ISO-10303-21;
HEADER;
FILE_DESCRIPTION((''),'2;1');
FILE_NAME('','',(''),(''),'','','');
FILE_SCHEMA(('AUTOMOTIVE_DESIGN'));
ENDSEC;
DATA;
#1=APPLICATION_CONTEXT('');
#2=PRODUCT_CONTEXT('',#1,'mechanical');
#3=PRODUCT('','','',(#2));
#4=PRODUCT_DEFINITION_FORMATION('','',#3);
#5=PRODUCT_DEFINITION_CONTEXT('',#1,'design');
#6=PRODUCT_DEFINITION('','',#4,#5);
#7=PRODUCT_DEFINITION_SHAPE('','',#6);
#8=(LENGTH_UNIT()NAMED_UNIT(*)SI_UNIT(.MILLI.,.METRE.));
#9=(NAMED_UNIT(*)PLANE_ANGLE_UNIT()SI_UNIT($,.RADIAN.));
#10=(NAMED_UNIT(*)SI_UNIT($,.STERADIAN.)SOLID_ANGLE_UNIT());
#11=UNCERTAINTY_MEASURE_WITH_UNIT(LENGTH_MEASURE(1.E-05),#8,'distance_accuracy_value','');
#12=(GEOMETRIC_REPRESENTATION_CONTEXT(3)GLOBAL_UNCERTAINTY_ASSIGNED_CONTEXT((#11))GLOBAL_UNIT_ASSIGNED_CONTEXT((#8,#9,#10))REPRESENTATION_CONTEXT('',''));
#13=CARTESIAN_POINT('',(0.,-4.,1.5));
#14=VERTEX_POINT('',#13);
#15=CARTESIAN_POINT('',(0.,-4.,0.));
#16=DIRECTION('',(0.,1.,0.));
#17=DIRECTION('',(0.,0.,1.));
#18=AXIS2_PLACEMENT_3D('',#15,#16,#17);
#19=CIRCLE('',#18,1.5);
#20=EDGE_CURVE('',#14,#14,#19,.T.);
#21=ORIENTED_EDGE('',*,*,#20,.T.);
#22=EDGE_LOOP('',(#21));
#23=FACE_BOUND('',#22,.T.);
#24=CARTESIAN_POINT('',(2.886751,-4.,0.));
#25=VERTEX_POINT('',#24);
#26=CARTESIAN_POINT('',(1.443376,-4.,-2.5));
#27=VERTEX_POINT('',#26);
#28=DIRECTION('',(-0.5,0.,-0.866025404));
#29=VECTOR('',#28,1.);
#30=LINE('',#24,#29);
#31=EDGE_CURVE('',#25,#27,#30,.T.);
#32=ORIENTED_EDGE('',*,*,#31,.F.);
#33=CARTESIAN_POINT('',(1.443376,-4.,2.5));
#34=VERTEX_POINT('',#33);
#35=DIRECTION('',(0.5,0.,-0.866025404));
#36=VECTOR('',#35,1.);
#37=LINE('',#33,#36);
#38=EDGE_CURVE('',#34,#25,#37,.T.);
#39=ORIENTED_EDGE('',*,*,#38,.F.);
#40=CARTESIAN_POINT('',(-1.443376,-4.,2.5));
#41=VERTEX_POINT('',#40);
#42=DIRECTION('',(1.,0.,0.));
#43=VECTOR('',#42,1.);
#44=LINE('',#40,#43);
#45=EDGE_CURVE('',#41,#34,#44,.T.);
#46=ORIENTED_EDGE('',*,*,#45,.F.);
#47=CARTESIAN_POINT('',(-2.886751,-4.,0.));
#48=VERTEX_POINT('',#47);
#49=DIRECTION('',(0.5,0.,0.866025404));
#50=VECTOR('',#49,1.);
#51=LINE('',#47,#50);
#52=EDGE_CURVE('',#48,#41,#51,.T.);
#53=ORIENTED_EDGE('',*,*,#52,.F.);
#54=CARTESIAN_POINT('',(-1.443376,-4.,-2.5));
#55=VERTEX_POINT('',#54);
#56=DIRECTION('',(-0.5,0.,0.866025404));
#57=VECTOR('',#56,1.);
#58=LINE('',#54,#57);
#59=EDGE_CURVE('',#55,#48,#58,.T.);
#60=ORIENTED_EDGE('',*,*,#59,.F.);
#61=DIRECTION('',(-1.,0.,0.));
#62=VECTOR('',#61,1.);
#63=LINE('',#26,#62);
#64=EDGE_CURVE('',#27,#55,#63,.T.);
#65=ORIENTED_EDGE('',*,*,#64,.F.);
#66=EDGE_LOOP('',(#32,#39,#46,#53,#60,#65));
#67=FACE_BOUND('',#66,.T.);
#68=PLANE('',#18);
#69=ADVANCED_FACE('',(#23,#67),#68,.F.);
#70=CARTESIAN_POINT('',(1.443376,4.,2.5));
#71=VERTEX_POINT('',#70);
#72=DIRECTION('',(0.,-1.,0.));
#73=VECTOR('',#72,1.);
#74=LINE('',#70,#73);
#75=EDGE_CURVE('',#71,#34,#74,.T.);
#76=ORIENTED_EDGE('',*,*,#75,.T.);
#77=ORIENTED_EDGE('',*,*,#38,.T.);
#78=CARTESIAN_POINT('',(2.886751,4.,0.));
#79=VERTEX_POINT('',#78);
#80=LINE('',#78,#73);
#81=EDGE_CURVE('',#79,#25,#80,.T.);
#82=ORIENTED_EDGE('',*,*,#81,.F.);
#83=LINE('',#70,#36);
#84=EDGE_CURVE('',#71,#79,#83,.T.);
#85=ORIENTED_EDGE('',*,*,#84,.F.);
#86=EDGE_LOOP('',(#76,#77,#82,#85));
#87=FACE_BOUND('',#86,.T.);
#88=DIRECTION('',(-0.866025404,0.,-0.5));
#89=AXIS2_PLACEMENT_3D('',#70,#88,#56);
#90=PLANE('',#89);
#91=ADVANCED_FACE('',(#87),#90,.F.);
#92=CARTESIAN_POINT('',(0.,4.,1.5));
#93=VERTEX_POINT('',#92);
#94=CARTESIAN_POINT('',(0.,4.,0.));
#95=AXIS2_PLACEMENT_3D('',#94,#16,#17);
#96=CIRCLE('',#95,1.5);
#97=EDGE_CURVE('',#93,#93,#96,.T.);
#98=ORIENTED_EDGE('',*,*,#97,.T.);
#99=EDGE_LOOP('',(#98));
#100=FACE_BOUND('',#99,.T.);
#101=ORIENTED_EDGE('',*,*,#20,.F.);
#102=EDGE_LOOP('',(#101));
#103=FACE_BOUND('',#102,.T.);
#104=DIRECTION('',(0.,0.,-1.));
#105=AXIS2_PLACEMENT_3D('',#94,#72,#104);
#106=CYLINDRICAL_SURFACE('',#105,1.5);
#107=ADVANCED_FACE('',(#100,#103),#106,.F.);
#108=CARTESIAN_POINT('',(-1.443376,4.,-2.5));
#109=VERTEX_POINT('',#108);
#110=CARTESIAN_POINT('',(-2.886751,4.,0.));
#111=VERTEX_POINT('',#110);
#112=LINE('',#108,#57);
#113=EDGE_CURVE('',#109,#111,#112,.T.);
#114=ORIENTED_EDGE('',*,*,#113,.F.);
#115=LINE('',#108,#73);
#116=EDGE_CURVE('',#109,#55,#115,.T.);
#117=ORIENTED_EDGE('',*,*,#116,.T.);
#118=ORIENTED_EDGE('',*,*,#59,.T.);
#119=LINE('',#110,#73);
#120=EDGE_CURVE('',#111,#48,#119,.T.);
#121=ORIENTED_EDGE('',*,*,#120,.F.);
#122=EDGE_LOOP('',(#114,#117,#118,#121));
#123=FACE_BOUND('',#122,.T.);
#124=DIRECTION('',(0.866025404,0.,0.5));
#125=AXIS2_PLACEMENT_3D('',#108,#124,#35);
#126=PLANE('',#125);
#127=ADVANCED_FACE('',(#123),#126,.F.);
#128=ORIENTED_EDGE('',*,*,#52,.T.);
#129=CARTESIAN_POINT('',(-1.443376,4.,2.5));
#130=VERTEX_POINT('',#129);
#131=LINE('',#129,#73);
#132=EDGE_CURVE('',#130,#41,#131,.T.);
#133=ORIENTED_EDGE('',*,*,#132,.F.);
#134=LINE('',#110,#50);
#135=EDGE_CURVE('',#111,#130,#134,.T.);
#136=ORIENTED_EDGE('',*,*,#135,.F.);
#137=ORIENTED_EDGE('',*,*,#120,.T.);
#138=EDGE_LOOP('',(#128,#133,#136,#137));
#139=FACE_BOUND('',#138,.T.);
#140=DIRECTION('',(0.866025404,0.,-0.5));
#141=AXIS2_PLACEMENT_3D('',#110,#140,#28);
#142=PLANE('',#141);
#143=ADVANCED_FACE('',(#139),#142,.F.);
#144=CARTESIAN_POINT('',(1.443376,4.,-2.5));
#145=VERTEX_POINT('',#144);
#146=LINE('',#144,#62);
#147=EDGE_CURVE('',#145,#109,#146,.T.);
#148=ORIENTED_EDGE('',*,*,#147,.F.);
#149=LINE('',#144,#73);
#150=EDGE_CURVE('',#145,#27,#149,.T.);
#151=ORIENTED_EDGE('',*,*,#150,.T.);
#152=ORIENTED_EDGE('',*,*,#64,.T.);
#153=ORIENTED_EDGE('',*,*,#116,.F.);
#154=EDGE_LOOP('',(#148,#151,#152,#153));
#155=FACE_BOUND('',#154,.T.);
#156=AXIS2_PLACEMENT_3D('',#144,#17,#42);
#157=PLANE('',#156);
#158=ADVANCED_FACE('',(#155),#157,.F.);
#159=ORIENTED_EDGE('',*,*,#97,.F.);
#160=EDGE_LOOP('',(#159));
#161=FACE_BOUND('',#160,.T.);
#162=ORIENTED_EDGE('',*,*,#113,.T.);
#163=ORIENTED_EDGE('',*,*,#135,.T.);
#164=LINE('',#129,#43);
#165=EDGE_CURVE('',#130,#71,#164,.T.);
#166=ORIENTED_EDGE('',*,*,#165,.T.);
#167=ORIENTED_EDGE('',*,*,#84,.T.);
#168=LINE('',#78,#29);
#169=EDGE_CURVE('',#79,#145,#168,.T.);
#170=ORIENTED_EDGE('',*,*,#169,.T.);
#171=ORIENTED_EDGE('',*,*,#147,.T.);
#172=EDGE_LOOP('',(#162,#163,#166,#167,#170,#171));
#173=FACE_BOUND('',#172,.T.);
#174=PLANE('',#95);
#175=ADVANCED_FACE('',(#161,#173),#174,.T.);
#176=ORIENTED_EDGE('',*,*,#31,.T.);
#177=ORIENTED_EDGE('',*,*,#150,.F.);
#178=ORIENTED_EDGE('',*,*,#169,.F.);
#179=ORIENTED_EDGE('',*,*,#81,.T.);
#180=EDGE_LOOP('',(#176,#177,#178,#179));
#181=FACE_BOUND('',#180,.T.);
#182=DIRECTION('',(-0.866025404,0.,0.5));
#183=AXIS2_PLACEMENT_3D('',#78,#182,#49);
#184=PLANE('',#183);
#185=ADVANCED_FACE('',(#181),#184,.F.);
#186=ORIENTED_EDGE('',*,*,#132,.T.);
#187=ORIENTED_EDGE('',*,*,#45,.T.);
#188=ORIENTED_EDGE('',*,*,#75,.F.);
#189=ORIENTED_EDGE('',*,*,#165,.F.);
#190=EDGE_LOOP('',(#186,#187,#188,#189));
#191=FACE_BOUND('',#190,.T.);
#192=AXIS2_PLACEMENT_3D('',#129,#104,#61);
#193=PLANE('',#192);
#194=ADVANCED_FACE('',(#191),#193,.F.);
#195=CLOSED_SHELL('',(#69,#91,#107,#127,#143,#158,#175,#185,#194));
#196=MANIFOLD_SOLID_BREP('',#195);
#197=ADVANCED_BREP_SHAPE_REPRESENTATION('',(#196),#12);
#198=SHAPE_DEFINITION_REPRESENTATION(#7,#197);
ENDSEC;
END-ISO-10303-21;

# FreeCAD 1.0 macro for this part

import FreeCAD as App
import Part
import Sketcher
from FreeCAD import Vector
Q = App.Units.Quantity

doc = App.newDocument("Part")
body = doc.addObject("PartDesign::Body", "Body")

# Sketch on XZ plane
sketch1 = doc.addObject("Sketcher::SketchObject", "Sketch")
body.addObject(sketch1)
sketch1.AttachmentSupport = (doc.XZ_Plane, [""])
sketch1.MapMode = "FlatFace"
sketch1.addGeometry(Part.LineSegment(Vector(1.4, 2.5, 0), Vector(2.9, 0, 0)), False)
sketch1.addGeometry(Part.LineSegment(Vector(2.9, 0, 0), Vector(1.4, -2.5, 0)), False)
sketch1.addGeometry(Part.LineSegment(Vector(1.4, -2.5, 0), Vector(-1.4, -2.5, 0)), False)
sketch1.addGeometry(Part.LineSegment(Vector(-1.4, -2.5, 0), Vector(-2.9, 0, 0)), False)
sketch1.addGeometry(Part.LineSegment(Vector(-2.9, 0, 0), Vector(-1.4, 2.5, 0)), False)
sketch1.addGeometry(Part.LineSegment(Vector(-1.4, 2.5, 0), Vector(1.4, 2.5, 0)), False)
sketch1.addGeometry(Part.Circle(Vector(0, 0, 0), Vector(0, 0, 1), 1.5), False)
sketch1.addConstraint(Sketcher.Constraint("Coincident", 0, 2, 1, 1))
sketch1.addConstraint(Sketcher.Constraint("Coincident", 1, 2, 2, 1))
sketch1.addConstraint(Sketcher.Constraint("Coincident", 2, 2, 3, 1))
sketch1.addConstraint(Sketcher.Constraint("Coincident", 3, 2, 4, 1))
sketch1.addConstraint(Sketcher.Constraint("Coincident", 4, 2, 5, 1))
sketch1.addConstraint(Sketcher.Constraint("Coincident", 5, 2, 0, 1))
sketch1.addConstraint(Sketcher.Constraint("Horizontal", 2))
sketch1.addConstraint(Sketcher.Constraint("Horizontal", 5))
sketch1.addConstraint(Sketcher.Constraint("Coincident", 6, 3, -1, 1))
sketch1.addConstraint(Sketcher.Constraint("Symmetric", 0, 2, 3, 2, -1, 1))
sketch1.addConstraint(Sketcher.Constraint("Symmetric", 1, 2, 4, 2, -1, 1))
sketch1.addConstraint(Sketcher.Constraint("PointOnObject", 0, 2, -1))
sketch1.addConstraint(Sketcher.Constraint("Parallel", 0, 3))
sketch1.addConstraint(Sketcher.Constraint("Vertical", 2, 2, 4, 2))
sketch1.addConstraint(Sketcher.Constraint("Diameter", 6, Q("3 mm")))
sketch1.addConstraint(Sketcher.Constraint("Angle", 0, Q("-60 deg")))
sketch1.addConstraint(Sketcher.Constraint("DistanceY", 2, 2, 4, 2, Q("5 mm")))
sketch1.addConstraint(Sketcher.Constraint("DistanceX", 2, 2, 2, 1, Q("2.886751 mm")))
pad1 = doc.addObject("PartDesign::Pad", "Pad")
body.addObject(pad1)
pad1.Profile = sketch1
pad1.Length = 8
pad1.Midplane = True

doc.recompute()
